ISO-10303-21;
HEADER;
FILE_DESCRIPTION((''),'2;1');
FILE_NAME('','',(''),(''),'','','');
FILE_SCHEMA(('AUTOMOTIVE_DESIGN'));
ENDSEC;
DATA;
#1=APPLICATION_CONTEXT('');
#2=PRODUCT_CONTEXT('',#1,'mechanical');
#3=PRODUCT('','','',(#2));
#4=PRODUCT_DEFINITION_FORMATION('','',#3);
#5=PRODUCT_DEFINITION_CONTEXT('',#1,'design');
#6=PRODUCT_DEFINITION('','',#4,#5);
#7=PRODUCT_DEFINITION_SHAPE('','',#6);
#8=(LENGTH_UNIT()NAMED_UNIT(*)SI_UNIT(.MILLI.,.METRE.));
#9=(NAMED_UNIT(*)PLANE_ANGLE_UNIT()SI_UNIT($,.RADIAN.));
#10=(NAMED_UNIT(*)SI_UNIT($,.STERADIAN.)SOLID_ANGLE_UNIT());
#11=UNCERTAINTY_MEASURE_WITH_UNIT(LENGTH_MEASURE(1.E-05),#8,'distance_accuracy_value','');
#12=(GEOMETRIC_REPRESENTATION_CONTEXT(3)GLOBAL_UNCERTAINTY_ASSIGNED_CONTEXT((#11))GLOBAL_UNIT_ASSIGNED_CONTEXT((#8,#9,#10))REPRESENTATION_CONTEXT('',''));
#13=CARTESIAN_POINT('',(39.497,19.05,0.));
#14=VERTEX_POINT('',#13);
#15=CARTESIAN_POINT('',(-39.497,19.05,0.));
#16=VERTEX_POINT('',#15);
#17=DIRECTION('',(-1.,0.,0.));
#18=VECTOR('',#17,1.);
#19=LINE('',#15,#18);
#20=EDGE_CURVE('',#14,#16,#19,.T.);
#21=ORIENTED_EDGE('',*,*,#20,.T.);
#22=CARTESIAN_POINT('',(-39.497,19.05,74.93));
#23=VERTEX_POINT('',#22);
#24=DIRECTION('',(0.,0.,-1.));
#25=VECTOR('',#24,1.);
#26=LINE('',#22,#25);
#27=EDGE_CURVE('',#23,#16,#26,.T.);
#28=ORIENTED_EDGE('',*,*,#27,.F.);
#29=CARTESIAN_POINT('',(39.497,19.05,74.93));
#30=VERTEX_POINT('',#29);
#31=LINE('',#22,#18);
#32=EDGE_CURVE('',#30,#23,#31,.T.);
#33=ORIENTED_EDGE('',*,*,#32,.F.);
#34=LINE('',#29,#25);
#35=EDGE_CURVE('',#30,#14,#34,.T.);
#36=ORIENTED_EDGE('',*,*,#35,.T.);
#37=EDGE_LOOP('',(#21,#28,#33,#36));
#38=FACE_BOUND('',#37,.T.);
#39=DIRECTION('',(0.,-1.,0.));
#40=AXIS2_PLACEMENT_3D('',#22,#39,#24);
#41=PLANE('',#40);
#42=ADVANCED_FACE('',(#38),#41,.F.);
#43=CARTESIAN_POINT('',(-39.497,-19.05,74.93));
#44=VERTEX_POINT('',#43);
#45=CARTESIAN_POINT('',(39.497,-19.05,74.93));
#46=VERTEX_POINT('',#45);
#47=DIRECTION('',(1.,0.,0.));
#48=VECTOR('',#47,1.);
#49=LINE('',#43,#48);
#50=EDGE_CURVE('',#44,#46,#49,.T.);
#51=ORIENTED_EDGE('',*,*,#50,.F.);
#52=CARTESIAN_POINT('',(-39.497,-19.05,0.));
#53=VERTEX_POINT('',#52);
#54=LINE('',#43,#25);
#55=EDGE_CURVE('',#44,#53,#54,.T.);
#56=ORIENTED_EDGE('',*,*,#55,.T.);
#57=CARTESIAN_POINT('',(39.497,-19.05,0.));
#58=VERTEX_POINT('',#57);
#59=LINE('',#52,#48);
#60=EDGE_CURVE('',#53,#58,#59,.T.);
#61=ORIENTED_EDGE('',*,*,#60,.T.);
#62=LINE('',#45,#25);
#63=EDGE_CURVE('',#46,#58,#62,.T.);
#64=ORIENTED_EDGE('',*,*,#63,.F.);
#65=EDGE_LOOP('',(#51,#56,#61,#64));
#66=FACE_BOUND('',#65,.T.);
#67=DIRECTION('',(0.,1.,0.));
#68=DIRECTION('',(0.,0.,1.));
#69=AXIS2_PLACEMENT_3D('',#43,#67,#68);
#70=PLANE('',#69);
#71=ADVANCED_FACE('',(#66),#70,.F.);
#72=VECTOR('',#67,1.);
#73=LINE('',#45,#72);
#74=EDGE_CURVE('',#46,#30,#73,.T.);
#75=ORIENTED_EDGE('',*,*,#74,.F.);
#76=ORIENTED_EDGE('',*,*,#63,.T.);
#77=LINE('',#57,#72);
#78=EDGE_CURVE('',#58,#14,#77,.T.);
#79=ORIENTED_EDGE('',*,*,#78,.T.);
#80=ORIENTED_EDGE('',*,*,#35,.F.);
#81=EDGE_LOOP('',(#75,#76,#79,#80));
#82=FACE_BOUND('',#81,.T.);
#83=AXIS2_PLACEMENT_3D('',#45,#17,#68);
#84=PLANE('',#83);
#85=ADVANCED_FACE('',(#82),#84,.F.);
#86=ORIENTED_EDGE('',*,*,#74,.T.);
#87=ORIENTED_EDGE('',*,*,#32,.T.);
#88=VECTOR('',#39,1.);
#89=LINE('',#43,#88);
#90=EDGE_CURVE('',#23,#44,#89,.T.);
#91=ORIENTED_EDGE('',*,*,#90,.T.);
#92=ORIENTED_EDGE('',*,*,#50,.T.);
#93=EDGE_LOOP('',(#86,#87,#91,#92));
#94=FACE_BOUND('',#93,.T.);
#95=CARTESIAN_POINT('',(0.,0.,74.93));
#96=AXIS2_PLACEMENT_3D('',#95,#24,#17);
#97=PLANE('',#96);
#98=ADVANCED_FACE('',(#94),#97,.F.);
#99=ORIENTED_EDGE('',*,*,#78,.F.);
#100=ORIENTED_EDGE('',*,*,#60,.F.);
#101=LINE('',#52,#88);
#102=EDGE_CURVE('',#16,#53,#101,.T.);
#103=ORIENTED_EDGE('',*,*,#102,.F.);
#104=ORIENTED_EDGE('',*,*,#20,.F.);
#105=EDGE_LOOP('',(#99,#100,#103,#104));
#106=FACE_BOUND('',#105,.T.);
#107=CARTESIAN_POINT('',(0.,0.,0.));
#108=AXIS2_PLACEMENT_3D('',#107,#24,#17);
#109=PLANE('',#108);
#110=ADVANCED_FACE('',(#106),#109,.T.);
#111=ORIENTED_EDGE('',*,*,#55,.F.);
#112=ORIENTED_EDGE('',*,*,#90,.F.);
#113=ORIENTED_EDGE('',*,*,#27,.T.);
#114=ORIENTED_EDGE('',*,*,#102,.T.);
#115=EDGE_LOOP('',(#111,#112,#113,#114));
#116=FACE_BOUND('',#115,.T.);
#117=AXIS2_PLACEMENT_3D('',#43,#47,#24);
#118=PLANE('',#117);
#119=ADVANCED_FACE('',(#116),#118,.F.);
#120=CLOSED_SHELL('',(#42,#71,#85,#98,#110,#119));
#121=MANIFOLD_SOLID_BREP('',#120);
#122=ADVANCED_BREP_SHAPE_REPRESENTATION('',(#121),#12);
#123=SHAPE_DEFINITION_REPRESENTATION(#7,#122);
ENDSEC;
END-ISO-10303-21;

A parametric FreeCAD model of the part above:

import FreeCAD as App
import Part
import Sketcher
from FreeCAD import Vector
Q = App.Units.Quantity

doc = App.newDocument("Part")
body = doc.addObject("PartDesign::Body", "Body")

sketch1 = doc.addObject("Sketcher::SketchObject", "Sketch")
body.addObject(sketch1)
sketch1.AttachmentSupport = (doc.XY_Plane, [""])
sketch1.MapMode = "FlatFace"
sketch1.addGeometry(Part.LineSegment(Vector(-39, 19, 0), Vector(-39, -19, 0)), False)
sketch1.addGeometry(Part.LineSegment(Vector(-39, -19, 0), Vector(39, -19, 0)), False)
sketch1.addGeometry(Part.LineSegment(Vector(39, -19, 0), Vector(39, 19, 0)), False)
sketch1.addGeometry(Part.LineSegment(Vector(39, 19, 0), Vector(-39, 19, 0)), False)
sketch1.addConstraint(Sketcher.Constraint("Coincident", 0, 2, 1, 1))
sketch1.addConstraint(Sketcher.Constraint("Coincident", 1, 2, 2, 1))
sketch1.addConstraint(Sketcher.Constraint("Coincident", 2, 2, 3, 1))
sketch1.addConstraint(Sketcher.Constraint("Coincident", 3, 2, 0, 1))
sketch1.addConstraint(Sketcher.Constraint("Vertical", 0))
sketch1.addConstraint(Sketcher.Constraint("Horizontal", 1))
sketch1.addConstraint(Sketcher.Constraint("Vertical", 2))
sketch1.addConstraint(Sketcher.Constraint("Horizontal", 3))
sketch1.addConstraint(Sketcher.Constraint("Symmetric", 0, 2, 2, 2, -1, 1))
sketch1.addConstraint(Sketcher.Constraint("DistanceY", 0, 2, 0, 1, Q("1.5 in")))
sketch1.addConstraint(Sketcher.Constraint("DistanceX", 1, 1, 1, 2, Q("3.11 in")))
pad1 = doc.addObject("PartDesign::Pad", "Pad")
body.addObject(pad1)
pad1.Profile = sketch1
pad1.Length = Q("2.95 in")

doc.recompute()
